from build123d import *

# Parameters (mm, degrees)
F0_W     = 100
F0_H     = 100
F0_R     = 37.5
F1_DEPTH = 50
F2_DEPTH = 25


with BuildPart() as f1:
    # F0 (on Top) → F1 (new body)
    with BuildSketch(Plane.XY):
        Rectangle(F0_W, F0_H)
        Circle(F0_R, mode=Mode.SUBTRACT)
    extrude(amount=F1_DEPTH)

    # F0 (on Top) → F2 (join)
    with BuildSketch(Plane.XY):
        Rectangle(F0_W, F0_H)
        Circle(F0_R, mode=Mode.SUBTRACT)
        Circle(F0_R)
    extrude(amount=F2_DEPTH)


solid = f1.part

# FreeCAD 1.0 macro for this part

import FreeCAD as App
import Part
import Sketcher


def add_polygon(sketch, points):
    """Adds a closed chain of lines whose ends are joined by coincident constraints."""
    first, n = sketch.GeometryCount, len(points)
    for a, b in zip(points, points[1:] + points[:1]):
        sketch.addGeometry(Part.LineSegment(App.Vector(*a, 0), App.Vector(*b, 0)), False)
    for i in range(n):
        sketch.addConstraint(Sketcher.Constraint("Coincident", first + i, 2, first + (i + 1) % n, 1))

doc = App.newDocument("Part")
body = doc.addObject("PartDesign::Body", "Body")

# Sketch on XY plane
sketch1 = body.newObject("Sketcher::SketchObject", "Sketch")
sketch1.AttachmentSupport = (doc.getObject("XY_Plane"), [""])
sketch1.MapMode = "FlatFace"
add_polygon(sketch1, [(-50, 50), (-50, -50), (50, -50), (50, 50)])  # lines 0-3
sketch1.addGeometry(Part.Circle(App.Vector(0, 0, 0), App.Vector(0, 0, 1), 38), False)  # 4
sketch1.addConstraint([
    Sketcher.Constraint("Vertical", 0),
    Sketcher.Constraint("Horizontal", 1),
    Sketcher.Constraint("Vertical", 2),
    Sketcher.Constraint("Horizontal", 3),
    Sketcher.Constraint("Coincident", 4, 3, -1, 1),
    Sketcher.Constraint("Symmetric", 0, 2, 2, 2, -1, 1),
    Sketcher.Constraint("Equal", 3, 0),
    Sketcher.Constraint("Diameter", 4, 75.0),
    Sketcher.Constraint("DistanceX", 1, 1, 1, 2, 100.0),
])
pad1 = body.newObject("PartDesign::Pad", "Pad")
pad1.Profile = sketch1
pad1.Length = 50

# Sketch on XY plane
sketch2 = body.newObject("Sketcher::SketchObject", "Sketch001")
sketch2.AttachmentSupport = (doc.getObject("XY_Plane"), [""])
sketch2.MapMode = "FlatFace"
add_polygon(sketch2, [(-50, 50), (-50, -50), (50, -50), (50, 50)])  # lines 0-3
sketch2.addConstraint([
    Sketcher.Constraint("Vertical", 0),
    Sketcher.Constraint("Horizontal", 1),
    Sketcher.Constraint("Vertical", 2),
    Sketcher.Constraint("Horizontal", 3),
    Sketcher.Constraint("Symmetric", 0, 2, 2, 2, -1, 1),
    Sketcher.Constraint("Equal", 3, 0),
    Sketcher.Constraint("DistanceX", 1, 1, 1, 2, 100.0),
])
pad2 = body.newObject("PartDesign::Pad", "Pad001")
pad2.Profile = sketch2
pad2.Length = 25

doc.recompute()
